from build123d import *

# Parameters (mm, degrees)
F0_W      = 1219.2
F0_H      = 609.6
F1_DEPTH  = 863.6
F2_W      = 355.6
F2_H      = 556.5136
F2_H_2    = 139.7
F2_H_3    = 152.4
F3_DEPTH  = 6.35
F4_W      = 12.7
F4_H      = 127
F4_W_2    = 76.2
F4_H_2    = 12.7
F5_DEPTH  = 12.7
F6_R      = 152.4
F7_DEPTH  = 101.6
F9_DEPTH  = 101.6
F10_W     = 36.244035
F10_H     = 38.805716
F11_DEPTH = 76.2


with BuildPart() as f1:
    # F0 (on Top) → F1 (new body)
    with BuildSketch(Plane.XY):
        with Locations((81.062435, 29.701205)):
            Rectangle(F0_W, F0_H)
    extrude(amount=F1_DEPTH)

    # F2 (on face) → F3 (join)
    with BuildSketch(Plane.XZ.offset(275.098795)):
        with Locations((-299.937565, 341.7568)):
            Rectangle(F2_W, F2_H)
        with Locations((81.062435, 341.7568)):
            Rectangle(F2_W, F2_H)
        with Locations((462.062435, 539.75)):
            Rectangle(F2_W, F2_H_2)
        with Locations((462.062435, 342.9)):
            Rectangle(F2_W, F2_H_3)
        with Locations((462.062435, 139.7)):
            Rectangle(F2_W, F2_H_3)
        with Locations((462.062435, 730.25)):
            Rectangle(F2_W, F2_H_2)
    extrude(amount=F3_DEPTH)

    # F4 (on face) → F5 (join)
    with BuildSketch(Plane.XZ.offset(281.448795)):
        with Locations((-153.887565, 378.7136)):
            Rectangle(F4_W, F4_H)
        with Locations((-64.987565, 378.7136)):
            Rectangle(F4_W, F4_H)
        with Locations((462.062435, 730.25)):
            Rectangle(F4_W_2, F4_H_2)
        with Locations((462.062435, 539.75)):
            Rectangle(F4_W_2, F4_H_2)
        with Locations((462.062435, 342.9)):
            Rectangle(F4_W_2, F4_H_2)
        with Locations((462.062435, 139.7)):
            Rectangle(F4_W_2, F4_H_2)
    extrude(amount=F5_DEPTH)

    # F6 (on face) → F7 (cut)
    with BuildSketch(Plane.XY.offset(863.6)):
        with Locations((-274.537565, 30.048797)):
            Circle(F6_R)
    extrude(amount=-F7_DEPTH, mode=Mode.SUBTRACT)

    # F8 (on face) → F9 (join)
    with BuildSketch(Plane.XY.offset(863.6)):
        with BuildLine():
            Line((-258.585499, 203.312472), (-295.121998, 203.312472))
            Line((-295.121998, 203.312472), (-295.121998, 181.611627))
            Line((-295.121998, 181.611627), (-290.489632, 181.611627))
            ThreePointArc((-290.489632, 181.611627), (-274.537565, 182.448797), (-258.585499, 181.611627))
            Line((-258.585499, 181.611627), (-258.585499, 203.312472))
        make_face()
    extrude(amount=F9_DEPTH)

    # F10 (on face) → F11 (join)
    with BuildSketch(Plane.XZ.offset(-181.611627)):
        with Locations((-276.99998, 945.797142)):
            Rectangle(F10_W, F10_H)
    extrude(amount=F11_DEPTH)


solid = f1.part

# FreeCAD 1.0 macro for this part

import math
import FreeCAD as App
import Part
import Sketcher

V = App.Vector
Q = App.Units.Quantity


def add_polygon(sketch, points):
    """Adds a closed chain of lines whose ends are joined by coincident constraints."""
    first, n = sketch.GeometryCount, len(points)
    for a, b in zip(points, points[1:] + points[:1]):
        sketch.addGeometry(Part.LineSegment(App.Vector(*a, 0), App.Vector(*b, 0)), False)
    for i in range(n):
        sketch.addConstraint(Sketcher.Constraint("Coincident", first + i, 2, first + (i + 1) % n, 1))

doc = App.newDocument("Part")
body = doc.addObject("PartDesign::Body", "Body")

sketch1 = body.newObject("Sketcher::SketchObject", "Sketch")
sketch1.AttachmentSupport = (doc.getObject("XY_Plane"), [""])
sketch1.MapMode = "FlatFace"
add_polygon(sketch1, [(-529, 335), (-529, -275), (691, -275), (691, 335)])
sketch1.addConstraint([
    Sketcher.Constraint("Vertical", 0),
    Sketcher.Constraint("Horizontal", 1),
    Sketcher.Constraint("Vertical", 2),
    Sketcher.Constraint("Horizontal", 3),
    Sketcher.Constraint("DistanceX", 1, 1, 1, 2, Q("48 in")),
    Sketcher.Constraint("DistanceY", 0, 2, 0, 1, Q("24 in")),
    Sketcher.Constraint("DistanceX", 0, 2, -1, 1, Q("528.537565 mm")),
    Sketcher.Constraint("DistanceY", 0, 2, -1, 1, Q("275.098795 mm")),
])
pad1 = body.newObject("PartDesign::Pad", "Pad")
pad1.Profile = sketch1
pad1.Length = Q("34 in")

sketch2 = body.newObject("Sketcher::SketchObject", "Sketch001")
sketch2.AttachmentSupport = (doc.getObject("XZ_Plane"), [""])
sketch2.MapMode = "FlatFace"
sketch2.AttachmentOffset = App.Placement(V(0, 0, 275.098795), App.Rotation())
add_polygon(sketch2, [(-478, 620), (-478, 64), (-122, 64), (-122, 620)])
add_polygon(sketch2, [(-97, 620), (-97, 64), (259, 64), (259, 620)])
add_polygon(sketch2, [(284, 610), (284, 470), (640, 470), (640, 610)])
add_polygon(sketch2, [(284, 419), (284, 267), (640, 267), (640, 419)])
add_polygon(sketch2, [(284, 216), (284, 64), (640, 64), (640, 216)])
add_polygon(sketch2, [(284, 800), (284, 660), (640, 660), (640, 800)])
sketch2.addConstraint([
    Sketcher.Constraint("Vertical", 0),
    Sketcher.Constraint("Horizontal", 1),
    Sketcher.Constraint("Vertical", 2),
    Sketcher.Constraint("Horizontal", 3),
    Sketcher.Constraint("Vertical", 4),
    Sketcher.Constraint("Horizontal", 5),
    Sketcher.Constraint("Vertical", 6),
    Sketcher.Constraint("Horizontal", 7),
    Sketcher.Constraint("Vertical", 8),
    Sketcher.Constraint("Horizontal", 9),
    Sketcher.Constraint("Vertical", 10),
    Sketcher.Constraint("Horizontal", 11),
    Sketcher.Constraint("Vertical", 12),
    Sketcher.Constraint("Horizontal", 13),
    Sketcher.Constraint("Vertical", 14),
    Sketcher.Constraint("Horizontal", 15),
    Sketcher.Constraint("Vertical", 16),
    Sketcher.Constraint("Horizontal", 17),
    Sketcher.Constraint("Vertical", 18),
    Sketcher.Constraint("Horizontal", 19),
    Sketcher.Constraint("Vertical", 20),
    Sketcher.Constraint("Horizontal", 21),
    Sketcher.Constraint("Vertical", 22),
    Sketcher.Constraint("Horizontal", 23),
    Sketcher.Constraint("Horizontal", 1, 2, 4, 2),
    Sketcher.Constraint("Horizontal", 3, 2, 6, 2),
    Sketcher.Constraint("Horizontal", 5, 2, 16, 2),
    Sketcher.Constraint("Vertical", 11, 2, 12, 2),
    Sketcher.Constraint("Vertical", 10, 2, 13, 2),
    Sketcher.Constraint("Vertical", 15, 2, 16, 2),
    Sketcher.Constraint("Vertical", 14, 2, 17, 2),
    Sketcher.Constraint("Vertical", 19, 2, 20, 2),
    Sketcher.Constraint("Vertical", 18, 2, 21, 2),
    Sketcher.Constraint("Equal", 3, 5),
    Sketcher.Constraint("Equal", 7, 9),
    Sketcher.Constraint("Equal", 14, 16),
    Sketcher.Constraint("Equal", 10, 20),
    Sketcher.Constraint("DistanceX", 1, 1, 1, 2, Q("14 in")),
    Sketcher.Constraint("DistanceY", 12, 2, 12, 1, Q("6 in")),
    Sketcher.Constraint("DistanceY", 8, 2, 8, 1, Q("5.5 in")),
    Sketcher.Constraint("DistanceY", -1, 1, 10, 2, Q("24 in")),
    Sketcher.Constraint("DistanceY", -1, 1, 20, 2, Q("26 in")),
    Sketcher.Constraint("DistanceX", 1, 2, 4, 2, Q("1 in")),
    Sketcher.Constraint("DistanceX", 6, 2, 8, 2, Q("1 in")),
    Sketcher.Constraint("DistanceY", 5, 2, 8, 2, Q("16 in")),
    Sketcher.Constraint("DistanceY", 12, 2, 8, 2, Q("8 in")),
    Sketcher.Constraint("DistanceY", 0, 2, 0, 1, Q("556.5136 mm")),
    Sketcher.Constraint("DistanceX", 0, 2, -1, 1, Q("477.737565 mm")),
])
pad2 = body.newObject("PartDesign::Pad", "Pad001")
pad2.Profile = sketch2
pad2.Length = Q("0.25 in")

sketch3 = body.newObject("Sketcher::SketchObject", "Sketch002")
sketch3.AttachmentSupport = (doc.getObject("XZ_Plane"), [""])
sketch3.MapMode = "FlatFace"
sketch3.AttachmentOffset = App.Placement(V(0, 0, 281.448795), App.Rotation())
add_polygon(sketch3, [(-160, 442), (-160, 315), (-148, 315), (-148, 442)])
add_polygon(sketch3, [(-71, 442), (-71, 315), (-59, 315), (-59, 442)])
add_polygon(sketch3, [(424, 737), (424, 724), (500, 724), (500, 737)])
add_polygon(sketch3, [(424, 546), (424, 533), (500, 533), (500, 546)])
add_polygon(sketch3, [(424, 349), (424, 337), (500, 337), (500, 349)])
add_polygon(sketch3, [(424, 146), (424, 133), (500, 133), (500, 146)])
sketch3.addConstraint([
    Sketcher.Constraint("Vertical", 0),
    Sketcher.Constraint("Horizontal", 1),
    Sketcher.Constraint("Vertical", 2),
    Sketcher.Constraint("Horizontal", 3),
    Sketcher.Constraint("Vertical", 4),
    Sketcher.Constraint("Horizontal", 5),
    Sketcher.Constraint("Vertical", 6),
    Sketcher.Constraint("Horizontal", 7),
    Sketcher.Constraint("Vertical", 8),
    Sketcher.Constraint("Horizontal", 9),
    Sketcher.Constraint("Vertical", 10),
    Sketcher.Constraint("Horizontal", 11),
    Sketcher.Constraint("Vertical", 12),
    Sketcher.Constraint("Horizontal", 13),
    Sketcher.Constraint("Vertical", 14),
    Sketcher.Constraint("Horizontal", 15),
    Sketcher.Constraint("Vertical", 16),
    Sketcher.Constraint("Horizontal", 17),
    Sketcher.Constraint("Vertical", 18),
    Sketcher.Constraint("Horizontal", 19),
    Sketcher.Constraint("Vertical", 20),
    Sketcher.Constraint("Horizontal", 21),
    Sketcher.Constraint("Vertical", 22),
    Sketcher.Constraint("Horizontal", 23),
    Sketcher.Constraint("Horizontal", 1, 2, 4, 2),
    Sketcher.Constraint("Horizontal", 3, 2, 6, 2),
    Sketcher.Constraint("Vertical", 11, 2, 12, 2),
    Sketcher.Constraint("Vertical", 10, 2, 13, 2),
    Sketcher.Constraint("Vertical", 15, 2, 16, 2),
    Sketcher.Constraint("Vertical", 14, 2, 17, 2),
    Sketcher.Constraint("Vertical", 19, 2, 20, 2),
    Sketcher.Constraint("Vertical", 18, 2, 21, 2),
    Sketcher.Constraint("Equal", 3, 5),
    Sketcher.Constraint("Equal", 7, 8),
    Sketcher.Constraint("Equal", 10, 12),
    Sketcher.Constraint("Equal", 14, 16),
    Sketcher.Constraint("Equal", 18, 20),
    Sketcher.Constraint("DistanceX", 9, 1, 9, 2, Q("3 in")),
    Sketcher.Constraint("DistanceY", 0, 2, 0, 1, Q("5 in")),
    Sketcher.Constraint("DistanceX", 1, 1, 1, 2, Q("0.5 in")),
    Sketcher.Constraint("DistanceY", -1, 1, 10, 2, Q("29 in")),
    Sketcher.Constraint("DistanceY", -1, 1, 12, 2, Q("21 in")),
    Sketcher.Constraint("DistanceX", 1, 2, 4, 2, Q("3 in")),
    Sketcher.Constraint("DistanceX", 6, 2, 8, 2, Q("19 in")),
    Sketcher.Constraint("DistanceY", 20, 2, 16, 2, Q("8 in")),
    Sketcher.Constraint("DistanceY", -1, 1, 16, 2, Q("13.25 in")),
    Sketcher.Constraint("DistanceY", -1, 1, 0, 2, Q("315.2136 mm")),
    Sketcher.Constraint("DistanceX", 0, 2, -1, 1, Q("160.237565 mm")),
])
pad3 = body.newObject("PartDesign::Pad", "Pad002")
pad3.Profile = sketch3
pad3.Length = Q("0.5 in")

sketch4 = body.newObject("Sketcher::SketchObject", "Sketch003")
sketch4.AttachmentSupport = (doc.getObject("XY_Plane"), [""])
sketch4.MapMode = "FlatFace"
sketch4.AttachmentOffset = App.Placement(V(0, 0, 34 * 25.4), App.Rotation())
sketch4.addGeometry(Part.Circle(V(-275, 30, 0), V(0, 0, 1), 152), False)
sketch4.addConstraint([
    Sketcher.Constraint("Diameter", 0, Q("12 in")),
    Sketcher.Constraint("DistanceX", 0, 3, -1, 1, Q("274.537565 mm")),
    Sketcher.Constraint("DistanceY", -1, 1, 0, 3, Q("30.048797 mm")),
])
pocket1 = body.newObject("PartDesign::Pocket", "Pocket")
pocket1.Profile = sketch4
pocket1.Length = Q("4 in")

sketch5 = body.newObject("Sketcher::SketchObject", "Sketch004")
sketch5.AttachmentSupport = (doc.getObject("XY_Plane"), [""])
sketch5.MapMode = "FlatFace"
sketch5.AttachmentOffset = App.Placement(V(0, 0, 34 * 25.4), App.Rotation())
sketch5.addGeometry([
    Part.LineSegment(V(-258.6, 203.3, 0), V(-295.1, 203.3, 0)),
    Part.LineSegment(V(-295.1, 203.3, 0), V(-295.1, 181.6, 0)),
    Part.LineSegment(V(-295.1, 181.6, 0), V(-290.5, 181.6, 0)),
    Part.ArcOfCircle(Part.Circle(V(-274.5, 30, 0), V(0, 0, 1), 152.4), math.radians(83.99), math.radians(96.01)),
    Part.LineSegment(V(-258.6, 181.6, 0), V(-258.6, 203.3, 0)),
], False)
sketch5.addConstraint([
    Sketcher.Constraint("Coincident", 0, 2, 1, 1),
    Sketcher.Constraint("Coincident", 1, 2, 2, 1),
    Sketcher.Constraint("Coincident", 2, 2, 3, 2),
    Sketcher.Constraint("Coincident", 3, 1, 4, 1),
    Sketcher.Constraint("Coincident", 4, 2, 0, 1),
    Sketcher.Constraint("Horizontal", 0),
    Sketcher.Constraint("Vertical", 1),
    Sketcher.Constraint("Horizontal", 2),
    Sketcher.Constraint("Vertical", 4),
    Sketcher.Constraint("Horizontal", 2, 2, 3, 1),
    Sketcher.Constraint("Radius", 3, Q("152.399918 mm")),
    Sketcher.Constraint("DistanceX", 0, 2, 0, 1, Q("36.536499 mm")),
    Sketcher.Constraint("DistanceX", 0, 2, -1, 1, Q("295.121998 mm")),
    Sketcher.Constraint("DistanceX", 2, 1, 2, 2, Q("4.632366 mm")),
    Sketcher.Constraint("DistanceY", 1, 2, 1, 1, Q("21.700845 mm")),
    Sketcher.Constraint("DistanceY", -1, 1, 3, 3, Q("30.048879 mm")),
])
pad4 = body.newObject("PartDesign::Pad", "Pad003")
pad4.Profile = sketch5
pad4.Length = Q("4 in")

sketch6 = body.newObject("Sketcher::SketchObject", "Sketch005")
sketch6.AttachmentSupport = (doc.getObject("XZ_Plane"), [""])
sketch6.MapMode = "FlatFace"
sketch6.AttachmentOffset = App.Placement(V(0, 0, -181.611627), App.Rotation())
add_polygon(sketch6, [(-295, 965), (-295, 926), (-259, 926), (-259, 965)])
sketch6.addConstraint([
    Sketcher.Constraint("Vertical", 0),
    Sketcher.Constraint("Horizontal", 1),
    Sketcher.Constraint("Vertical", 2),
    Sketcher.Constraint("Horizontal", 3),
    Sketcher.Constraint("DistanceY", -1, 1, 2, 2, Q("38 in")),
    Sketcher.Constraint("DistanceX", 1, 1, 1, 2, Q("36.244035 mm")),
    Sketcher.Constraint("DistanceY", 0, 2, 0, 1, Q("38.805716 mm")),
    Sketcher.Constraint("DistanceX", 0, 2, -1, 1, Q("295.121998 mm")),
])
pad5 = body.newObject("PartDesign::Pad", "Pad004")
pad5.Profile = sketch6
pad5.Length = Q("3 in")

doc.recompute()
